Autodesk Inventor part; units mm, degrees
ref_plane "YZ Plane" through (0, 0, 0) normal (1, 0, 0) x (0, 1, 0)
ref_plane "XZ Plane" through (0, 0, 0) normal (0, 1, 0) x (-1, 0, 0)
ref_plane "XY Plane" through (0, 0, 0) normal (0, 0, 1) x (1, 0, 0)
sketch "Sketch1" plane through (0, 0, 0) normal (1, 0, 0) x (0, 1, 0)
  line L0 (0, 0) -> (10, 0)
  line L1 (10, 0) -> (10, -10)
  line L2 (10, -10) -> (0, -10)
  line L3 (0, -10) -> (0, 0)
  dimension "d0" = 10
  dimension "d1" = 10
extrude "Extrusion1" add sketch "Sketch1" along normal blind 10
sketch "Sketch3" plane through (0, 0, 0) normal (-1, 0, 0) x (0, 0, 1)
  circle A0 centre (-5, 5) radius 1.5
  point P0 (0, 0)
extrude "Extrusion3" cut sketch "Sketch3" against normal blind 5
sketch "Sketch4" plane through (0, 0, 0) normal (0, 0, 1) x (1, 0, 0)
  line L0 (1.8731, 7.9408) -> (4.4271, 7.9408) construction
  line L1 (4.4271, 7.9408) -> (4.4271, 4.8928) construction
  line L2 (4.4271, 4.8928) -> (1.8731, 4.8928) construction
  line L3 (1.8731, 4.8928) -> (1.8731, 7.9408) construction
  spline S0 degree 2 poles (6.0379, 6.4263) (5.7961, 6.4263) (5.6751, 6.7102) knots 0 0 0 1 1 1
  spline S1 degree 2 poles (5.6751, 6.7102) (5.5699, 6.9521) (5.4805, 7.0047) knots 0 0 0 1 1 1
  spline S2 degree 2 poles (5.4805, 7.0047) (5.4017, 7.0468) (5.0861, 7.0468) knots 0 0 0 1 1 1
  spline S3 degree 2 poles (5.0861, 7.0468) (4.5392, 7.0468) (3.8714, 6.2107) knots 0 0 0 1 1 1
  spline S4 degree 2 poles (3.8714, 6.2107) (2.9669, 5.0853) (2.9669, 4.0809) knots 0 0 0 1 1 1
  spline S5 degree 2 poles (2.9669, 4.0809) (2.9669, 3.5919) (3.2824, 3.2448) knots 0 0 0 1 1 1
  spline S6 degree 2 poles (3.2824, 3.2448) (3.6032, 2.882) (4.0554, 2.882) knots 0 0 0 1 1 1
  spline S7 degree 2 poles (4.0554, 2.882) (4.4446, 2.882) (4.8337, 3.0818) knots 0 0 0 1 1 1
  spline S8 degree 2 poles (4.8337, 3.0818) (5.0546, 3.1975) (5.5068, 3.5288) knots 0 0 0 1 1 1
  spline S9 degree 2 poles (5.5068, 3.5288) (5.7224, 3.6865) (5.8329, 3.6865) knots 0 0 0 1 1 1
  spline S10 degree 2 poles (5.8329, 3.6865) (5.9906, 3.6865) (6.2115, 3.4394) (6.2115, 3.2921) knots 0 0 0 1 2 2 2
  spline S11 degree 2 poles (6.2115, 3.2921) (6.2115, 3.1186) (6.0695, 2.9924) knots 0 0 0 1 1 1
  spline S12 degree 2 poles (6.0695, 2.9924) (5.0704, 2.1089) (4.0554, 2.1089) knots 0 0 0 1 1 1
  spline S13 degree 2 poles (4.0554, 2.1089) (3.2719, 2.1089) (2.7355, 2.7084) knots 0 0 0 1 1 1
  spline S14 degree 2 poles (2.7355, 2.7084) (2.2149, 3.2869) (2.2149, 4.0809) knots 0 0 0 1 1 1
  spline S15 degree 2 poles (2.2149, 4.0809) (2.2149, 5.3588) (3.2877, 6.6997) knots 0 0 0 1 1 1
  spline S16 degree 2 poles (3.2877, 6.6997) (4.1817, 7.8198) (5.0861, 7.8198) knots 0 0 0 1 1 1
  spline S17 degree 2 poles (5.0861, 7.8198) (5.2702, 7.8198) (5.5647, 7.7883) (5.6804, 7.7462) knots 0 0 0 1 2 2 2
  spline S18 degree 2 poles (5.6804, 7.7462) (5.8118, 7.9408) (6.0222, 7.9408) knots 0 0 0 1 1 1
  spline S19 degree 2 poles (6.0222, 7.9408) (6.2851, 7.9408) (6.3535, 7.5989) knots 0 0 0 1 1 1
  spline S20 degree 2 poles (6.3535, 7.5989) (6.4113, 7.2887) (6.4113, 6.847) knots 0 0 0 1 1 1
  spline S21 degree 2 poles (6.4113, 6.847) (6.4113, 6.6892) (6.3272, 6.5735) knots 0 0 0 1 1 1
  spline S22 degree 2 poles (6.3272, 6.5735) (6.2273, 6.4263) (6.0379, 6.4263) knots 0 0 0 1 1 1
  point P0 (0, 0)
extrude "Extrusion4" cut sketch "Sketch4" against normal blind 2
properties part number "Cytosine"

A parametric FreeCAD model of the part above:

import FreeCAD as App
import Part
import Sketcher
Q = App.Units.Quantity

doc = App.newDocument("Part")
params = doc.addObject("Spreadsheet::Sheet", "Params")
for row, (alias, value) in enumerate([
    ("sketch1_width", "10 mm"),
    ("pad1_length", "10 mm"),
    ("sketch2_diameter", "3 mm"),
    ("pocket1_length", "5 mm"),
    ("pocket2_length", "2 mm"),
], start=1):
    params.set(f"A{row}", alias)
    params.set(f"B{row}", "=" + value)
    params.setAlias(f"B{row}", alias)

body = doc.addObject("PartDesign::Body", "Body")

# Sketch on YZ plane
sketch1 = doc.addObject("Sketcher::SketchObject", "Sketch")
body.addObject(sketch1)
sketch1.AttachmentSupport = (doc.YZ_Plane, [""])
sketch1.MapMode = "FlatFace"
sketch1.addGeometry([
    Part.LineSegment(App.Vector(10, 0, 0), App.Vector(0, 0, 0)),
    Part.LineSegment(App.Vector(0, 0, 0), App.Vector(0, -10, 0)),
    Part.LineSegment(App.Vector(0, -10, 0), App.Vector(10, -10, 0)),
    Part.LineSegment(App.Vector(10, -10, 0), App.Vector(10, 0, 0)),
], False)
sketch1.addConstraint([
    Sketcher.Constraint("Coincident", 0, 2, 1, 1),
    Sketcher.Constraint("Coincident", 1, 2, 2, 1),
    Sketcher.Constraint("Coincident", 2, 2, 3, 1),
    Sketcher.Constraint("Coincident", 3, 2, 0, 1),
    Sketcher.Constraint("Horizontal", 0),
    Sketcher.Constraint("Vertical", 1),
    Sketcher.Constraint("Horizontal", 2),
    Sketcher.Constraint("Vertical", 3),
    Sketcher.Constraint("Coincident", 0, 2, -1, 1),
    Sketcher.Constraint("Equal", 2, 1),
    Sketcher.Constraint("DistanceX", 0, 2, 0, 1, Q("10 mm")),
])
sketch1.setExpression("Constraints[10]", "Params.sketch1_width")
pad1 = doc.addObject("PartDesign::Pad", "Pad")
body.addObject(pad1)
pad1.Profile = sketch1
pad1.setExpression("Length", "Params.pad1_length")

# Sketch on YZ plane
sketch2 = doc.addObject("Sketcher::SketchObject", "Sketch001")
body.addObject(sketch2)
sketch2.AttachmentSupport = (doc.YZ_Plane, [""])
sketch2.MapMode = "FlatFace"
sketch2.addGeometry(Part.Circle(App.Vector(5, -5, 0), App.Vector(0, 0, 1), 1.5), False)
sketch2.addConstraint([
    Sketcher.Constraint("Diameter", 0, Q("3 mm")),
    Sketcher.Constraint("DistanceX", -1, 1, 0, 3, Q("5 mm")),
    Sketcher.Constraint("DistanceY", 0, 3, -1, 1, Q("5 mm")),
])
sketch2.setExpression("Constraints[0]", "Params.sketch2_diameter")
pocket1 = doc.addObject("PartDesign::Pocket", "Pocket")
body.addObject(pocket1)
pocket1.Profile = sketch2
pocket1.setExpression("Length", "Params.pocket1_length")
pocket1.Reversed = True

# Sketch on XY plane
sketch3 = doc.addObject("Sketcher::SketchObject", "Sketch002")
body.addObject(sketch3)
sketch3.AttachmentSupport = (doc.XY_Plane, [""])
sketch3.MapMode = "FlatFace"
sketch3.addGeometry([
    Part.BSplineCurve([App.Vector(6.0379, 6.4263, 0), App.Vector(5.7961, 6.4263, 0), App.Vector(5.6751, 6.7102, 0)], [3, 3], [0, 1], False, 2, [1, 1, 1], False),  # 0
    Part.BSplineCurve([App.Vector(6.3272, 6.5735, 0), App.Vector(6.2273, 6.4263, 0), App.Vector(6.0379, 6.4263, 0)], [3, 3], [0, 1], False, 2, [1, 1, 1], False),  # 1
    Part.BSplineCurve([App.Vector(6.4113, 6.847, 0), App.Vector(6.4113, 6.6892, 0), App.Vector(6.3272, 6.5735, 0)], [3, 3], [0, 1], False, 2, [1, 1, 1], False),  # 2
    Part.BSplineCurve([App.Vector(6.3535, 7.5989, 0), App.Vector(6.4113, 7.2887, 0), App.Vector(6.4113, 6.847, 0)], [3, 3], [0, 1], False, 2, [1, 1, 1], False),  # 3
    Part.BSplineCurve([App.Vector(6.0222, 7.9408, 0), App.Vector(6.2851, 7.9408, 0), App.Vector(6.3535, 7.5989, 0)], [3, 3], [0, 1], False, 2, [1, 1, 1], False),  # 4
    Part.BSplineCurve([App.Vector(5.6804, 7.7462, 0), App.Vector(5.8118, 7.9408, 0), App.Vector(6.0222, 7.9408, 0)], [3, 3], [0, 1], False, 2, [1, 1, 1], False),  # 5
    Part.BSplineCurve([App.Vector(5.0861, 7.8198, 0), App.Vector(5.2702, 7.8198, 0), App.Vector(5.5647, 7.7883, 0), App.Vector(5.6804, 7.7462, 0)], [3, 1, 3], [0, 1, 2], False, 2, [1, 1, 1, 1], False),  # 6
    Part.BSplineCurve([App.Vector(3.2877, 6.6997, 0), App.Vector(4.1817, 7.8198, 0), App.Vector(5.0861, 7.8198, 0)], [3, 3], [0, 1], False, 2, [1, 1, 1], False),  # 7
    Part.BSplineCurve([App.Vector(2.2149, 4.0809, 0), App.Vector(2.2149, 5.3588, 0), App.Vector(3.2877, 6.6997, 0)], [3, 3], [0, 1], False, 2, [1, 1, 1], False),  # 8
    Part.BSplineCurve([App.Vector(2.7355, 2.7084, 0), App.Vector(2.2149, 3.2869, 0), App.Vector(2.2149, 4.0809, 0)], [3, 3], [0, 1], False, 2, [1, 1, 1], False),  # 9
    Part.BSplineCurve([App.Vector(4.0554, 2.1089, 0), App.Vector(3.2719, 2.1089, 0), App.Vector(2.7355, 2.7084, 0)], [3, 3], [0, 1], False, 2, [1, 1, 1], False),  # 10
    Part.BSplineCurve([App.Vector(6.0695, 2.9924, 0), App.Vector(5.0704, 2.1089, 0), App.Vector(4.0554, 2.1089, 0)], [3, 3], [0, 1], False, 2, [1, 1, 1], False),  # 11
    Part.BSplineCurve([App.Vector(6.2115, 3.2921, 0), App.Vector(6.2115, 3.1186, 0), App.Vector(6.0695, 2.9924, 0)], [3, 3], [0, 1], False, 2, [1, 1, 1], False),  # 12
    Part.BSplineCurve([App.Vector(5.8329, 3.6865, 0), App.Vector(5.9906, 3.6865, 0), App.Vector(6.2115, 3.4394, 0), App.Vector(6.2115, 3.2921, 0)], [3, 1, 3], [0, 1, 2], False, 2, [1, 1, 1, 1], False),  # 13
    Part.BSplineCurve([App.Vector(5.5068, 3.5288, 0), App.Vector(5.7224, 3.6865, 0), App.Vector(5.8329, 3.6865, 0)], [3, 3], [0, 1], False, 2, [1, 1, 1], False),  # 14
    Part.BSplineCurve([App.Vector(4.8337, 3.0818, 0), App.Vector(5.0546, 3.1975, 0), App.Vector(5.5068, 3.5288, 0)], [3, 3], [0, 1], False, 2, [1, 1, 1], False),  # 15
    Part.BSplineCurve([App.Vector(4.0554, 2.882, 0), App.Vector(4.4446, 2.882, 0), App.Vector(4.8337, 3.0818, 0)], [3, 3], [0, 1], False, 2, [1, 1, 1], False),  # 16
    Part.BSplineCurve([App.Vector(3.2824, 3.2448, 0), App.Vector(3.6032, 2.882, 0), App.Vector(4.0554, 2.882, 0)], [3, 3], [0, 1], False, 2, [1, 1, 1], False),  # 17
    Part.BSplineCurve([App.Vector(2.9669, 4.0809, 0), App.Vector(2.9669, 3.5919, 0), App.Vector(3.2824, 3.2448, 0)], [3, 3], [0, 1], False, 2, [1, 1, 1], False),  # 18
    Part.BSplineCurve([App.Vector(3.8714, 6.2107, 0), App.Vector(2.9669, 5.0853, 0), App.Vector(2.9669, 4.0809, 0)], [3, 3], [0, 1], False, 2, [1, 1, 1], False),  # 19
    Part.BSplineCurve([App.Vector(5.0861, 7.0468, 0), App.Vector(4.5392, 7.0468, 0), App.Vector(3.8714, 6.2107, 0)], [3, 3], [0, 1], False, 2, [1, 1, 1], False),  # 20
    Part.BSplineCurve([App.Vector(5.4805, 7.0047, 0), App.Vector(5.4017, 7.0468, 0), App.Vector(5.0861, 7.0468, 0)], [3, 3], [0, 1], False, 2, [1, 1, 1], False),  # 21
    Part.BSplineCurve([App.Vector(5.6751, 6.7102, 0), App.Vector(5.5699, 6.9521, 0), App.Vector(5.4805, 7.0047, 0)], [3, 3], [0, 1], False, 2, [1, 1, 1], False),  # 22
], False)
sketch3.addConstraint([
    Sketcher.Constraint("Block", 0),
    Sketcher.Constraint("Block", 1),
    Sketcher.Constraint("Block", 2),
    Sketcher.Constraint("Block", 3),
    Sketcher.Constraint("Block", 4),
    Sketcher.Constraint("Block", 5),
    Sketcher.Constraint("Block", 6),
    Sketcher.Constraint("Block", 7),
    Sketcher.Constraint("Block", 8),
    Sketcher.Constraint("Block", 9),
    Sketcher.Constraint("Block", 10),
    Sketcher.Constraint("Block", 11),
    Sketcher.Constraint("Block", 12),
    Sketcher.Constraint("Block", 13),
    Sketcher.Constraint("Block", 14),
    Sketcher.Constraint("Block", 15),
    Sketcher.Constraint("Block", 16),
    Sketcher.Constraint("Block", 17),
    Sketcher.Constraint("Block", 18),
    Sketcher.Constraint("Block", 19),
    Sketcher.Constraint("Block", 20),
    Sketcher.Constraint("Block", 21),
    Sketcher.Constraint("Block", 22),
])
pocket2 = doc.addObject("PartDesign::Pocket", "Pocket001")
body.addObject(pocket2)
pocket2.Profile = sketch3
pocket2.setExpression("Length", "Params.pocket2_length")

doc.recompute()
